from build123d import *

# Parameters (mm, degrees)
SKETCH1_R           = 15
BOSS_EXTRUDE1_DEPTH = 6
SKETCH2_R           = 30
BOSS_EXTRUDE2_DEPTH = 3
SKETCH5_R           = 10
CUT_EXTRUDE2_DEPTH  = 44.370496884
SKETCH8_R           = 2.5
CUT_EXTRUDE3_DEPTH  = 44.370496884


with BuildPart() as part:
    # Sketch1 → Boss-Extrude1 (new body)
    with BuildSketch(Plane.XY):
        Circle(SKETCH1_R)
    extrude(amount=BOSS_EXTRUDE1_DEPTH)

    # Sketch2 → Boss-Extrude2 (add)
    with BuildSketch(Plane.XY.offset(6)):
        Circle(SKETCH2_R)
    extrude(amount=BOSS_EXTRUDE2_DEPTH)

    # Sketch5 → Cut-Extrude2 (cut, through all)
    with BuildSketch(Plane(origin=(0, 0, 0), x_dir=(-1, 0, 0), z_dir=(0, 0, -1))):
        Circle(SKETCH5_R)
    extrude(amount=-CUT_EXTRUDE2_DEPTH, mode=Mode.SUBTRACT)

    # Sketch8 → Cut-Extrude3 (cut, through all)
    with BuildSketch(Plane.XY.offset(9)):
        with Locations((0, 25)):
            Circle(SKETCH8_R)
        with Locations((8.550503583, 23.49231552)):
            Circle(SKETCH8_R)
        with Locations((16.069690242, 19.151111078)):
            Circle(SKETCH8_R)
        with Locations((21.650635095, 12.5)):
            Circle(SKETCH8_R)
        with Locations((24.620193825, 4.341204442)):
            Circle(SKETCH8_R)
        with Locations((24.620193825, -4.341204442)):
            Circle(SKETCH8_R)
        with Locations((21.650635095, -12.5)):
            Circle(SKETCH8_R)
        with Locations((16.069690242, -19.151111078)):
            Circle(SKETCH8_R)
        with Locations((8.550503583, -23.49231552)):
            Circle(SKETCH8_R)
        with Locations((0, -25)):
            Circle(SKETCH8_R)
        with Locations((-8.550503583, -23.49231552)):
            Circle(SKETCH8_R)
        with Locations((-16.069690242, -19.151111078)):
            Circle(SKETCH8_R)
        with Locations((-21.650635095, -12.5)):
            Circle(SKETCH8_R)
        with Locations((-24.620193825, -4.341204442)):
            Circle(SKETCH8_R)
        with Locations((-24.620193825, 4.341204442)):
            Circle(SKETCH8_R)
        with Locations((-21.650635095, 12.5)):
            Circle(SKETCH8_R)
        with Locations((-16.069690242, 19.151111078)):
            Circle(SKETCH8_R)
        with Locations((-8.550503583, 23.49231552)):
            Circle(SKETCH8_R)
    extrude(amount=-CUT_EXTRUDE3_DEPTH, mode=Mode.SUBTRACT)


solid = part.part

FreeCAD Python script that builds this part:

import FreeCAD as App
import Part
import Sketcher
from FreeCAD import Vector

doc = App.newDocument("Part")
params = doc.addObject("Spreadsheet::Sheet", "Params")
for row, (alias, value) in enumerate([
    ("sketch1_diameter", "30 mm"),
    ("pad1_length", "6 mm"),
    ("sketch2_diameter", "60 mm"),
    ("pad2_length", "3 mm"),
    ("sketch3_diameter", "20 mm"),
    ("sketch4_diameter", "5 mm"),
], start=1):
    params.set(f"A{row}", alias)
    params.set(f"B{row}", "=" + value)
    params.setAlias(f"B{row}", alias)

body = doc.addObject("PartDesign::Body", "Body")

sketch1 = body.newObject("Sketcher::SketchObject", "Sketch")
sketch1.AttachmentSupport = (doc.getObject("XY_Plane"), [""])
sketch1.MapMode = "FlatFace"
sketch1.addGeometry(Part.Circle(Vector(0, 0, 0), Vector(0, 0, 1), 15), False)
sketch1.addConstraint([
    Sketcher.Constraint("Coincident", 0, 3, -1, 1),
    Sketcher.Constraint("Diameter", 0, 30.0),
])
sketch1.setExpression("Constraints[1]", "Params.sketch1_diameter")
pad1 = body.newObject("PartDesign::Pad", "Pad")
pad1.Profile = sketch1
pad1.setExpression("Length", "Params.pad1_length")

sketch2 = body.newObject("Sketcher::SketchObject", "Sketch001")
sketch2.AttachmentSupport = (doc.getObject("XY_Plane"), [""])
sketch2.MapMode = "FlatFace"
sketch2.AttachmentOffset = App.Placement(Vector(0, 0, 6), App.Rotation())
sketch2.addGeometry(Part.Circle(Vector(0, 0, 0), Vector(0, 0, 1), 30), False)
sketch2.addConstraint([
    Sketcher.Constraint("Coincident", 0, 3, -1, 1),
    Sketcher.Constraint("Diameter", 0, 60.0),
])
sketch2.setExpression("Constraints[1]", "Params.sketch2_diameter")
pad2 = body.newObject("PartDesign::Pad", "Pad001")
pad2.Profile = sketch2
pad2.setExpression("Length", "Params.pad2_length")

sketch3 = body.newObject("Sketcher::SketchObject", "Sketch002")
sketch3.AttachmentSupport = (doc.getObject("XY_Plane"), [""])
sketch3.MapMode = "FlatFace"
sketch3.addGeometry(Part.Circle(Vector(0, 0, 0), Vector(0, 0, 1), 10), False)
sketch3.addConstraint([
    Sketcher.Constraint("Coincident", 0, 3, -1, 1),
    Sketcher.Constraint("Diameter", 0, 20.0),
])
sketch3.setExpression("Constraints[1]", "Params.sketch3_diameter")
pocket1 = body.newObject("PartDesign::Pocket", "Pocket")
pocket1.Profile = sketch3
pocket1.Type = "ThroughAll"
pocket1.Reversed = True

sketch4 = body.newObject("Sketcher::SketchObject", "Sketch003")
sketch4.AttachmentSupport = (doc.getObject("XY_Plane"), [""])
sketch4.MapMode = "FlatFace"
sketch4.AttachmentOffset = App.Placement(Vector(0, 0, 9), App.Rotation())
sketch4.addGeometry([
    Part.Circle(Vector(0, 25, 0), Vector(0, 0, 1), 2.5),
    Part.Circle(Vector(8.550504, 23.492316, 0), Vector(0, 0, 1), 2.5),
    Part.Circle(Vector(16.06969, 19.151111, 0), Vector(0, 0, 1), 2.5),
    Part.Circle(Vector(21.650635, 12.5, 0), Vector(0, 0, 1), 2.5),
    Part.Circle(Vector(24.620194, 4.341204, 0), Vector(0, 0, 1), 2.5),
    Part.Circle(Vector(24.620194, -4.341204, 0), Vector(0, 0, 1), 2.5),
    Part.Circle(Vector(21.650635, -12.5, 0), Vector(0, 0, 1), 2.5),
    Part.Circle(Vector(16.06969, -19.151111, 0), Vector(0, 0, 1), 2.5),
    Part.Circle(Vector(8.550504, -23.492316, 0), Vector(0, 0, 1), 2.5),
    Part.Circle(Vector(0, -25, 0), Vector(0, 0, 1), 2.5),
    Part.Circle(Vector(-8.550504, -23.492316, 0), Vector(0, 0, 1), 2.5),
    Part.Circle(Vector(-16.06969, -19.151111, 0), Vector(0, 0, 1), 2.5),
    Part.Circle(Vector(-21.650635, -12.5, 0), Vector(0, 0, 1), 2.5),
    Part.Circle(Vector(-24.620194, -4.341204, 0), Vector(0, 0, 1), 2.5),
    Part.Circle(Vector(-24.620194, 4.341204, 0), Vector(0, 0, 1), 2.5),
    Part.Circle(Vector(-21.650635, 12.5, 0), Vector(0, 0, 1), 2.5),
    Part.Circle(Vector(-16.06969, 19.151111, 0), Vector(0, 0, 1), 2.5),
    Part.Circle(Vector(-8.550504, 23.492316, 0), Vector(0, 0, 1), 2.5),
], False)
sketch4.addConstraint([
    Sketcher.Constraint("Equal", 0, 1),
    Sketcher.Constraint("Equal", 1, 2),
    Sketcher.Constraint("Equal", 2, 3),
    Sketcher.Constraint("Equal", 3, 4),
    Sketcher.Constraint("Equal", 4, 5),
    Sketcher.Constraint("Equal", 5, 6),
    Sketcher.Constraint("Equal", 6, 7),
    Sketcher.Constraint("Equal", 7, 8),
    Sketcher.Constraint("Equal", 8, 9),
    Sketcher.Constraint("Equal", 9, 10),
    Sketcher.Constraint("Equal", 10, 11),
    Sketcher.Constraint("Equal", 11, 12),
    Sketcher.Constraint("Equal", 12, 13),
    Sketcher.Constraint("Equal", 13, 14),
    Sketcher.Constraint("Equal", 14, 15),
    Sketcher.Constraint("Equal", 15, 16),
    Sketcher.Constraint("Equal", 16, 17),
    Sketcher.Constraint("Symmetric", 0, 3, 9, 3, -1, 1),
    Sketcher.Constraint("Symmetric", 1, 3, 10, 3, -1, 1),
    Sketcher.Constraint("Symmetric", 2, 3, 11, 3, -1, 1),
    Sketcher.Constraint("Symmetric", 3, 3, 12, 3, -1, 1),
    Sketcher.Constraint("Symmetric", 4, 3, 13, 3, -1, 1),
    Sketcher.Constraint("Symmetric", 5, 3, 14, 3, -1, 1),
    Sketcher.Constraint("Symmetric", 6, 3, 15, 3, -1, 1),
    Sketcher.Constraint("Symmetric", 7, 3, 16, 3, -1, 1),
    Sketcher.Constraint("Symmetric", 8, 3, 17, 3, -1, 1),
    Sketcher.Constraint("Symmetric", 8, 3, 10, 3, -2),
    Sketcher.Constraint("Symmetric", 7, 3, 11, 3, -2),
    Sketcher.Constraint("Symmetric", 6, 3, 12, 3, -2),
    Sketcher.Constraint("Symmetric", 5, 3, 13, 3, -2),
    Sketcher.Constraint("PointOnObject", 0, 3, -2),
    Sketcher.Constraint("Diameter", 0, 5.0),
    Sketcher.Constraint("DistanceY", -1, 1, 0, 3, 25.0),
    Sketcher.Constraint("DistanceY", 6, 3, 3, 3, 25.0),
    Sketcher.Constraint("DistanceX", -1, 1, 2, 3, 16.06969),
    Sketcher.Constraint("DistanceY", -1, 1, 2, 3, 19.151111),
    Sketcher.Constraint("DistanceX", 1, 3, 3, 3, 13.100132),
    Sketcher.Constraint("DistanceX", 3, 3, 4, 3, 2.969559),
    Sketcher.Constraint("DistanceY", 4, 3, 1, 3, 19.151111),
    Sketcher.Constraint("DistanceY", 5, 3, 4, 3, 8.682409),
    Sketcher.Constraint("DistanceX", 10, 3, 6, 3, 30.201139),
])
sketch4.setExpression("Constraints[31]", "Params.sketch4_diameter")
pocket2 = body.newObject("PartDesign::Pocket", "Pocket001")
pocket2.Profile = sketch4
pocket2.Type = "ThroughAll"

doc.recompute()
